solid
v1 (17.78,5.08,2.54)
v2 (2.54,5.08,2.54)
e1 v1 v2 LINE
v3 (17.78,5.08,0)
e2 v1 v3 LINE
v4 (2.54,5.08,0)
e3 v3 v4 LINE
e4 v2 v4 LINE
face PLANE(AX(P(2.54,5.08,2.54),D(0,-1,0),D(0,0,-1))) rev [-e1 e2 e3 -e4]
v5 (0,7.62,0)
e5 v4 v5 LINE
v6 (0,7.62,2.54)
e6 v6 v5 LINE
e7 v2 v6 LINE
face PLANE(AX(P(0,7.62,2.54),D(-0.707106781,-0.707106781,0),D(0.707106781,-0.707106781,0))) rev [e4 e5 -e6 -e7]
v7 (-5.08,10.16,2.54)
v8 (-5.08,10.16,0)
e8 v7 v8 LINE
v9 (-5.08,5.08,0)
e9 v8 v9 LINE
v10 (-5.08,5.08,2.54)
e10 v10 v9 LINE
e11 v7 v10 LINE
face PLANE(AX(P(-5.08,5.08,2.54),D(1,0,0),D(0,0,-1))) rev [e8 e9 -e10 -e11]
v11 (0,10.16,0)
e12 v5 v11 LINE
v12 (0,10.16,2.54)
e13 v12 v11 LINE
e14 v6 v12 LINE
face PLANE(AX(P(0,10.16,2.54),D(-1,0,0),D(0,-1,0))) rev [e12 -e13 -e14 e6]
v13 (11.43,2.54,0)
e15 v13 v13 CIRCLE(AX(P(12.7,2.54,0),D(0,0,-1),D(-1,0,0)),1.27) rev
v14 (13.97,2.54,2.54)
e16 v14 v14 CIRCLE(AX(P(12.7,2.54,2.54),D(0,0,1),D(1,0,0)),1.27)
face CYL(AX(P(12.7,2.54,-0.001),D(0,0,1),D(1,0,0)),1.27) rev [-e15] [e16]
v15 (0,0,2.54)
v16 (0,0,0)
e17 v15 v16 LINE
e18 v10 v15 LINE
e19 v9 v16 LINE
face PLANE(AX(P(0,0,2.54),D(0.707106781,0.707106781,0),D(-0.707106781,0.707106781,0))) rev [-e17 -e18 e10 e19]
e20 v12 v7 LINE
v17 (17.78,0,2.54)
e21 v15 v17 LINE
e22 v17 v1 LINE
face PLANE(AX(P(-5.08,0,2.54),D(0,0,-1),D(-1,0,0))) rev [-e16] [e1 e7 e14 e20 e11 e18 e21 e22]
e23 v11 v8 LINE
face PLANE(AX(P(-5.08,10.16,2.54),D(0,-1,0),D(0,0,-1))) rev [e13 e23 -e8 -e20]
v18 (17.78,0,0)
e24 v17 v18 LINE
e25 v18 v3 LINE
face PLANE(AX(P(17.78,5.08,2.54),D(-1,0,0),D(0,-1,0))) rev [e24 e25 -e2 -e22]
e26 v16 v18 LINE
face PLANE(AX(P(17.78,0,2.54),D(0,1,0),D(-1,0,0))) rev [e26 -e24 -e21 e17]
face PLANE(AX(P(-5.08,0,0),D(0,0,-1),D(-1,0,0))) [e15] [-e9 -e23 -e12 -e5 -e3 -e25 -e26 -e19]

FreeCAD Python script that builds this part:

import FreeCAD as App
import Part
import Sketcher
Q = App.Units.Quantity


def add_polygon(sketch, points):
    """Adds a closed chain of lines whose ends are joined by coincident constraints."""
    first, n = sketch.GeometryCount, len(points)
    for a, b in zip(points, points[1:] + points[:1]):
        sketch.addGeometry(Part.LineSegment(App.Vector(*a, 0), App.Vector(*b, 0)), False)
    for i in range(n):
        sketch.addConstraint(Sketcher.Constraint("Coincident", first + i, 2, first + (i + 1) % n, 1))

doc = App.newDocument("Part")
body = doc.addObject("PartDesign::Body", "Body")

# Sketch on XY plane
sketch1 = body.newObject("Sketcher::SketchObject", "Sketch")
sketch1.AttachmentSupport = (doc.getObject("XY_Plane"), [""])
sketch1.MapMode = "FlatFace"
add_polygon(sketch1, [(-5.08, 5.08), (0, 0), (17.78, 0), (17.78, 5.08), (2.54, 5.08), (0, 7.62), (0, 10.16), (-5.08, 10.16)])  # lines 0-7
sketch1.addConstraint(Sketcher.Constraint("Horizontal", 1))
sketch1.addConstraint(Sketcher.Constraint("Vertical", 2))
sketch1.addConstraint(Sketcher.Constraint("Horizontal", 3))
sketch1.addConstraint(Sketcher.Constraint("Vertical", 5))
sketch1.addConstraint(Sketcher.Constraint("Horizontal", 6))
sketch1.addConstraint(Sketcher.Constraint("Vertical", 7))
sketch1.addConstraint(Sketcher.Constraint("Coincident", 0, 2, -1, 1))
sketch1.addConstraint(Sketcher.Constraint("PointOnObject", 4, 2, -2))
sketch1.addConstraint(Sketcher.Constraint("Parallel", 0, 4))
sketch1.addConstraint(Sketcher.Constraint("Horizontal", 3, 2, 7, 2))
sketch1.addConstraint(Sketcher.Constraint("Equal", 6, 2))
sketch1.addConstraint(Sketcher.Constraint("Equal", 2, 7))
sketch1.addConstraint(Sketcher.Constraint("DistanceX", 1, 1, 1, 2, Q("0.7 in")))
sketch1.addConstraint(Sketcher.Constraint("DistanceX", 3, 2, 3, 1, Q("0.6 in")))
sketch1.addConstraint(Sketcher.Constraint("DistanceX", 6, 2, 6, 1, Q("0.2 in")))
pad1 = body.newObject("PartDesign::Pad", "Pad")
pad1.Profile = sketch1
pad1.Length = Q("0.1 in")

# Sketch on XY plane
sketch2 = body.newObject("Sketcher::SketchObject", "Sketch001")
sketch2.AttachmentSupport = (doc.getObject("XY_Plane"), [""])
sketch2.MapMode = "FlatFace"
sketch2.AttachmentOffset = App.Placement(App.Vector(0, 0, 0.1 * 25.4), App.Rotation())
sketch2.addGeometry(Part.Circle(App.Vector(12.7, 2.54, 0), App.Vector(0, 0, 1), 1.27), False)
sketch2.addConstraint(Sketcher.Constraint("Diameter", 0, Q("0.1 in")))
sketch2.addConstraint(Sketcher.Constraint("DistanceX", -1, 1, 0, 3, Q("0.5 in")))
sketch2.addConstraint(Sketcher.Constraint("DistanceY", -1, 1, 0, 3, Q("0.1 in")))
pocket1 = body.newObject("PartDesign::Pocket", "Pocket")
pocket1.Profile = sketch2
pocket1.Type = "UpToFirst"

doc.recompute()
